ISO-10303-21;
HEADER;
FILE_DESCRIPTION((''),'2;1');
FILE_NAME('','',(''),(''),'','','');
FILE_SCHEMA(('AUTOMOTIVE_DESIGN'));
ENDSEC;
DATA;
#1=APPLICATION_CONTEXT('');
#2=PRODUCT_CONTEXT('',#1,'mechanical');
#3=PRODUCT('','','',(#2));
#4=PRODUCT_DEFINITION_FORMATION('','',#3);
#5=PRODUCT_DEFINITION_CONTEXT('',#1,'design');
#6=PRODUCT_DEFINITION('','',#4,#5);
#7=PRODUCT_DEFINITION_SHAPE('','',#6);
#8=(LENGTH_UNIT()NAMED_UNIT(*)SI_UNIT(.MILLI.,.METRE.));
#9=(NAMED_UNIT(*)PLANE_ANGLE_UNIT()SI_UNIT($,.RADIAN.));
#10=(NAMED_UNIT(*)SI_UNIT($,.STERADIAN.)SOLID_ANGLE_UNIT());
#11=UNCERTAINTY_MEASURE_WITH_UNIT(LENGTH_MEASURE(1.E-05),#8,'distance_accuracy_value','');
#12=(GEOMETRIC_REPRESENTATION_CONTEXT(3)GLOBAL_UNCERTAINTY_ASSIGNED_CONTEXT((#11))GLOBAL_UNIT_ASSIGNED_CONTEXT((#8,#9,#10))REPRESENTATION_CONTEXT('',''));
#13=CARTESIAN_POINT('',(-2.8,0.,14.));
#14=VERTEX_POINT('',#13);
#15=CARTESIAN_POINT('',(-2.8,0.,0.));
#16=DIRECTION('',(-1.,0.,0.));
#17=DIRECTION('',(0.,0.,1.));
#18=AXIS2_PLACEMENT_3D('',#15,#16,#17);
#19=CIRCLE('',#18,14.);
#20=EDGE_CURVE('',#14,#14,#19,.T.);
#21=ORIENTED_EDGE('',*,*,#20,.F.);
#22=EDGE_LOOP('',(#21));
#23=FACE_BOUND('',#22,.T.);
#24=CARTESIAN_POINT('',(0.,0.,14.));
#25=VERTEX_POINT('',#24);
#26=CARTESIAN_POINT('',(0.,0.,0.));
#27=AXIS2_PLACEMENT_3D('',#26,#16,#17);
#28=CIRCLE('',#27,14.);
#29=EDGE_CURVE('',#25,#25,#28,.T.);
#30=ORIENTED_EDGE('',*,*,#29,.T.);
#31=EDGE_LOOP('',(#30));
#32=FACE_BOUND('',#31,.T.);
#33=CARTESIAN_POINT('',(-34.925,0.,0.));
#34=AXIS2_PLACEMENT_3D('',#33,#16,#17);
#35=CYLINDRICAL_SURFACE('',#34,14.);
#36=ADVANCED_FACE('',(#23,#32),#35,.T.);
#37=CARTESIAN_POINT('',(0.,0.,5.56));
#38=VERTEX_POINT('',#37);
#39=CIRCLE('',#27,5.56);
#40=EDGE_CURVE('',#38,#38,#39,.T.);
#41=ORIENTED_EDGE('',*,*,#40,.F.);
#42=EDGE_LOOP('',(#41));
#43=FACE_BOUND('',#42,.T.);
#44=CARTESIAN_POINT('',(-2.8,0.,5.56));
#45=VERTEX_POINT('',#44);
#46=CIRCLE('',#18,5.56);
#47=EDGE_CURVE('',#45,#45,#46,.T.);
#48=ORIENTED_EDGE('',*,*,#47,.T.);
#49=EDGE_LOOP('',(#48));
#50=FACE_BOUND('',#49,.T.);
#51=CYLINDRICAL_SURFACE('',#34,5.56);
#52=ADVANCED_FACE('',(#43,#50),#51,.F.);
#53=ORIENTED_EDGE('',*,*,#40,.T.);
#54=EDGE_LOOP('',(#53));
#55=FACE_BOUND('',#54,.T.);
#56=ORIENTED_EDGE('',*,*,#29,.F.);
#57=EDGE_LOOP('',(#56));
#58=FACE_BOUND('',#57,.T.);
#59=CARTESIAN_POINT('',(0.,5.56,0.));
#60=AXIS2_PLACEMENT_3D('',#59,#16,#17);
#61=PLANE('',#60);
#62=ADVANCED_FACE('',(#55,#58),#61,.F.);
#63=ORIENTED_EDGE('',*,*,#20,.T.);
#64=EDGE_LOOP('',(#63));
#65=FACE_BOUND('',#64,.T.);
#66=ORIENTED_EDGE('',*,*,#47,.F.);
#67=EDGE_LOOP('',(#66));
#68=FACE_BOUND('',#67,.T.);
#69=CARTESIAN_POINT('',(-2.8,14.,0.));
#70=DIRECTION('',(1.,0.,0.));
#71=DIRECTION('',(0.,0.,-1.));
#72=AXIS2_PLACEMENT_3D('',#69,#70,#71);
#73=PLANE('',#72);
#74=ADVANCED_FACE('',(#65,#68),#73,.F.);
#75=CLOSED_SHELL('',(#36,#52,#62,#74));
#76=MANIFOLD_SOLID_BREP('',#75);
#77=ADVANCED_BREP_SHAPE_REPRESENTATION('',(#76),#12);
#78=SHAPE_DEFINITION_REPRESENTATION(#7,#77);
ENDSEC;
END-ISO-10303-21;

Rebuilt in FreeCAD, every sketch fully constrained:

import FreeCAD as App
import Part
import Sketcher

doc = App.newDocument("Part")
body = doc.addObject("PartDesign::Body", "Body")

# Sketch on XY plane
sketch1 = body.newObject("Sketcher::SketchObject", "Sketch")
sketch1.AttachmentSupport = (doc.getObject("XY_Plane"), [""])
sketch1.MapMode = "FlatFace"
sketch1.addGeometry([
    Part.LineSegment(App.Vector(-2.8, 14, 0), App.Vector(-2.8, 5.6, 0)),
    Part.LineSegment(App.Vector(-2.8, 5.6, 0), App.Vector(0, 5.6, 0)),
    Part.LineSegment(App.Vector(0, 5.6, 0), App.Vector(0, 14, 0)),
    Part.LineSegment(App.Vector(0, 14, 0), App.Vector(-2.8, 14, 0)),
], False)
sketch1.addConstraint([
    Sketcher.Constraint("Coincident", 0, 2, 1, 1),
    Sketcher.Constraint("Coincident", 1, 2, 2, 1),
    Sketcher.Constraint("Coincident", 2, 2, 3, 1),
    Sketcher.Constraint("Coincident", 3, 2, 0, 1),
    Sketcher.Constraint("Vertical", 0),
    Sketcher.Constraint("Horizontal", 1),
    Sketcher.Constraint("Vertical", 2),
    Sketcher.Constraint("Horizontal", 3),
    Sketcher.Constraint("PointOnObject", 1, 2, -2),
    Sketcher.Constraint("DistanceX", 1, 1, 1, 2, 2.8),
    Sketcher.Constraint("DistanceY", -1, 1, 2, 2, 14.0),
    Sketcher.Constraint("DistanceY", 0, 2, 0, 1, 8.44),
])
revolution = body.newObject("PartDesign::Revolution", "Revolution")
revolution.Profile = sketch1
revolution.ReferenceAxis = (sketch1, ["H_Axis"])
revolution.Angle = 360

doc.recompute()
